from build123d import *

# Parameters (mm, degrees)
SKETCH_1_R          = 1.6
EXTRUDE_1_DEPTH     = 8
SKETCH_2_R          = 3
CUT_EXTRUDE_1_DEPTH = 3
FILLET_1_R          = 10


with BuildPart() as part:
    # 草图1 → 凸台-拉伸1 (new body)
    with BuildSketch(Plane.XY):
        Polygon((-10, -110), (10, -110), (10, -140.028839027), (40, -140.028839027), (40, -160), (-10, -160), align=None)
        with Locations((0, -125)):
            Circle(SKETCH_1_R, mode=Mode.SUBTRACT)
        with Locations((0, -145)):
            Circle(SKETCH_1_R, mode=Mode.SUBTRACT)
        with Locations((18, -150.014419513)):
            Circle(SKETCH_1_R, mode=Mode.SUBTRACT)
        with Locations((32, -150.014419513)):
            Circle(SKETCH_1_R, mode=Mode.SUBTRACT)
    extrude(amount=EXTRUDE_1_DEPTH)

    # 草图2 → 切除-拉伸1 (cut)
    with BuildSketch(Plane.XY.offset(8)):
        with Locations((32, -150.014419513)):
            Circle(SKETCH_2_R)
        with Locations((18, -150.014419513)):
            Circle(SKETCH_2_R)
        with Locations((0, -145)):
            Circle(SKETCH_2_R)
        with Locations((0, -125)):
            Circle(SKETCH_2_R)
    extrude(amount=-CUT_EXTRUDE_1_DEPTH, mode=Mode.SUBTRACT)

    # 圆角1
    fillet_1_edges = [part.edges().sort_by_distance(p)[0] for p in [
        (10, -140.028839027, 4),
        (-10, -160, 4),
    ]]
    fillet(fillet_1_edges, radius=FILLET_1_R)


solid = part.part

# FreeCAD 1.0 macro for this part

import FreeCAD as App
import Part
import Sketcher

V = App.Vector
Q = App.Units.Quantity


def edges_at(feature, points):
    """Names of the edges that pass closest to the given points."""
    edges = feature.Shape.Edges
    near = lambda p: min(range(len(edges)), key=lambda i: edges[i].distToShape(Part.Vertex(*p))[0])
    return sorted({f"Edge{near(p) + 1}" for p in points})


def add_polygon(sketch, points):
    """Adds a closed chain of lines whose ends are joined by coincident constraints."""
    first, n = sketch.GeometryCount, len(points)
    for a, b in zip(points, points[1:] + points[:1]):
        sketch.addGeometry(Part.LineSegment(App.Vector(*a, 0), App.Vector(*b, 0)), False)
    for i in range(n):
        sketch.addConstraint(Sketcher.Constraint("Coincident", first + i, 2, first + (i + 1) % n, 1))

doc = App.newDocument("Part")
params = doc.addObject("Spreadsheet::Sheet", "Params")
for row, (alias, value) in enumerate([
    ("sketch1_diameter", "3.2 mm"),
    ("sketch1_width", "20 mm"),
    ("sketch1_width2", "50 mm"),
    ("pad1_length", "8 mm"),
    ("sketch2_diameter", "6 mm"),
    ("pocket1_length", "3 mm"),
    ("fillet_radius", "10 mm"),
], start=1):
    params.set(f"A{row}", alias)
    params.set(f"B{row}", "=" + value)
    params.setAlias(f"B{row}", alias)

body = doc.addObject("PartDesign::Body", "Body")

sketch1 = body.newObject("Sketcher::SketchObject", "Sketch")
sketch1.AttachmentSupport = (doc.getObject("XY_Plane"), [""])
sketch1.MapMode = "FlatFace"
add_polygon(sketch1, [(10, -110), (-10, -110), (-10, -160), (40, -160), (40, -140), (10, -140)])
sketch1.addGeometry(Part.Circle(V(32, -150, 0), V(0, 0, 1), 1.6), False)
sketch1.addGeometry(Part.Circle(V(18, -150, 0), V(0, 0, 1), 1.6), False)
sketch1.addGeometry(Part.Circle(V(0, -145, 0), V(0, 0, 1), 1.6), False)
sketch1.addGeometry(Part.Circle(V(0, -125, 0), V(0, 0, 1), 1.6), False)
sketch1.addConstraint(Sketcher.Constraint("Horizontal", 0))
sketch1.addConstraint(Sketcher.Constraint("Vertical", 1))
sketch1.addConstraint(Sketcher.Constraint("Horizontal", 2))
sketch1.addConstraint(Sketcher.Constraint("Vertical", 3))
sketch1.addConstraint(Sketcher.Constraint("Horizontal", 4))
sketch1.addConstraint(Sketcher.Constraint("Vertical", 5))
sketch1.addConstraint(Sketcher.Constraint("Equal", 6, 7))
sketch1.addConstraint(Sketcher.Constraint("Equal", 7, 8))
sketch1.addConstraint(Sketcher.Constraint("Equal", 8, 9))
sketch1.addConstraint(Sketcher.Constraint("PointOnObject", 8, 3, -2))
sketch1.addConstraint(Sketcher.Constraint("PointOnObject", 9, 3, -2))
sketch1.addConstraint(Sketcher.Constraint("Horizontal", 6, 3, 7, 3))
sketch1.addConstraint(Sketcher.Constraint("Equal", 2, 1))
sketch1.addConstraint(Sketcher.Constraint("Diameter", 6, Q("3.2 mm")))
sketch1.addConstraint(Sketcher.Constraint("DistanceX", 0, 2, 0, 1, Q("20 mm")))
sketch1.addConstraint(Sketcher.Constraint("DistanceX", 2, 1, 2, 2, Q("50 mm")))
sketch1.addConstraint(Sketcher.Constraint("DistanceX", -1, 1, 6, 3, Q("32 mm")))
sketch1.addConstraint(Sketcher.Constraint("DistanceX", -1, 1, 7, 3, Q("18 mm")))
sketch1.addConstraint(Sketcher.Constraint("DistanceY", 8, 3, -1, 1, Q("145 mm")))
sketch1.addConstraint(Sketcher.Constraint("DistanceY", 9, 3, -1, 1, Q("125 mm")))
sketch1.addConstraint(Sketcher.Constraint("DistanceX", 0, 2, -1, 1, Q("10 mm")))
sketch1.addConstraint(Sketcher.Constraint("DistanceY", 0, 2, -1, 1, Q("110 mm")))
sketch1.addConstraint(Sketcher.Constraint("DistanceY", 3, 1, 3, 2, Q("19.971161 mm")))
sketch1.addConstraint(Sketcher.Constraint("DistanceY", 6, 3, -1, 1, Q("150.01442 mm")))
sketch1.setExpression("Constraints[19]", "Params.sketch1_diameter")
sketch1.setExpression("Constraints[20]", "Params.sketch1_width")
sketch1.setExpression("Constraints[21]", "Params.sketch1_width2")
pad1 = body.newObject("PartDesign::Pad", "Pad")
pad1.Profile = sketch1
pad1.setExpression("Length", "Params.pad1_length")

sketch2 = body.newObject("Sketcher::SketchObject", "Sketch001")
sketch2.AttachmentSupport = (doc.getObject("XY_Plane"), [""])
sketch2.MapMode = "FlatFace"
sketch2.AttachmentOffset = App.Placement(V(0, 0, 8), App.Rotation())
sketch2.addGeometry(Part.Circle(V(32, -150, 0), V(0, 0, 1), 3), False)
sketch2.addGeometry(Part.Circle(V(18, -150, 0), V(0, 0, 1), 3), False)
sketch2.addGeometry(Part.Circle(V(0, -145, 0), V(0, 0, 1), 3), False)
sketch2.addGeometry(Part.Circle(V(0, -125, 0), V(0, 0, 1), 3), False)
sketch2.addConstraint(Sketcher.Constraint("Equal", 0, 1))
sketch2.addConstraint(Sketcher.Constraint("Equal", 1, 2))
sketch2.addConstraint(Sketcher.Constraint("Equal", 2, 3))
sketch2.addConstraint(Sketcher.Constraint("PointOnObject", 2, 3, -2))
sketch2.addConstraint(Sketcher.Constraint("PointOnObject", 3, 3, -2))
sketch2.addConstraint(Sketcher.Constraint("Horizontal", 0, 3, 1, 3))
sketch2.addConstraint(Sketcher.Constraint("Diameter", 0, Q("6 mm")))
sketch2.addConstraint(Sketcher.Constraint("DistanceX", -1, 1, 0, 3, Q("32 mm")))
sketch2.addConstraint(Sketcher.Constraint("DistanceX", -1, 1, 1, 3, Q("18 mm")))
sketch2.addConstraint(Sketcher.Constraint("DistanceY", 2, 3, -1, 1, Q("145 mm")))
sketch2.addConstraint(Sketcher.Constraint("DistanceY", 3, 3, -1, 1, Q("125 mm")))
sketch2.addConstraint(Sketcher.Constraint("DistanceY", 0, 3, -1, 1, Q("150.01442 mm")))
sketch2.setExpression("Constraints[6]", "Params.sketch2_diameter")
pocket1 = body.newObject("PartDesign::Pocket", "Pocket")
pocket1.Profile = sketch2
pocket1.setExpression("Length", "Params.pocket1_length")
doc.recompute()

fillet = body.newObject("PartDesign::Fillet", "Fillet")
fillet.Base = (pocket1, edges_at(pocket1, [(10, -140.029, 4), (-10, -160, 4)]))
fillet.setExpression("Radius", "Params.fillet_radius")

doc.recompute()
